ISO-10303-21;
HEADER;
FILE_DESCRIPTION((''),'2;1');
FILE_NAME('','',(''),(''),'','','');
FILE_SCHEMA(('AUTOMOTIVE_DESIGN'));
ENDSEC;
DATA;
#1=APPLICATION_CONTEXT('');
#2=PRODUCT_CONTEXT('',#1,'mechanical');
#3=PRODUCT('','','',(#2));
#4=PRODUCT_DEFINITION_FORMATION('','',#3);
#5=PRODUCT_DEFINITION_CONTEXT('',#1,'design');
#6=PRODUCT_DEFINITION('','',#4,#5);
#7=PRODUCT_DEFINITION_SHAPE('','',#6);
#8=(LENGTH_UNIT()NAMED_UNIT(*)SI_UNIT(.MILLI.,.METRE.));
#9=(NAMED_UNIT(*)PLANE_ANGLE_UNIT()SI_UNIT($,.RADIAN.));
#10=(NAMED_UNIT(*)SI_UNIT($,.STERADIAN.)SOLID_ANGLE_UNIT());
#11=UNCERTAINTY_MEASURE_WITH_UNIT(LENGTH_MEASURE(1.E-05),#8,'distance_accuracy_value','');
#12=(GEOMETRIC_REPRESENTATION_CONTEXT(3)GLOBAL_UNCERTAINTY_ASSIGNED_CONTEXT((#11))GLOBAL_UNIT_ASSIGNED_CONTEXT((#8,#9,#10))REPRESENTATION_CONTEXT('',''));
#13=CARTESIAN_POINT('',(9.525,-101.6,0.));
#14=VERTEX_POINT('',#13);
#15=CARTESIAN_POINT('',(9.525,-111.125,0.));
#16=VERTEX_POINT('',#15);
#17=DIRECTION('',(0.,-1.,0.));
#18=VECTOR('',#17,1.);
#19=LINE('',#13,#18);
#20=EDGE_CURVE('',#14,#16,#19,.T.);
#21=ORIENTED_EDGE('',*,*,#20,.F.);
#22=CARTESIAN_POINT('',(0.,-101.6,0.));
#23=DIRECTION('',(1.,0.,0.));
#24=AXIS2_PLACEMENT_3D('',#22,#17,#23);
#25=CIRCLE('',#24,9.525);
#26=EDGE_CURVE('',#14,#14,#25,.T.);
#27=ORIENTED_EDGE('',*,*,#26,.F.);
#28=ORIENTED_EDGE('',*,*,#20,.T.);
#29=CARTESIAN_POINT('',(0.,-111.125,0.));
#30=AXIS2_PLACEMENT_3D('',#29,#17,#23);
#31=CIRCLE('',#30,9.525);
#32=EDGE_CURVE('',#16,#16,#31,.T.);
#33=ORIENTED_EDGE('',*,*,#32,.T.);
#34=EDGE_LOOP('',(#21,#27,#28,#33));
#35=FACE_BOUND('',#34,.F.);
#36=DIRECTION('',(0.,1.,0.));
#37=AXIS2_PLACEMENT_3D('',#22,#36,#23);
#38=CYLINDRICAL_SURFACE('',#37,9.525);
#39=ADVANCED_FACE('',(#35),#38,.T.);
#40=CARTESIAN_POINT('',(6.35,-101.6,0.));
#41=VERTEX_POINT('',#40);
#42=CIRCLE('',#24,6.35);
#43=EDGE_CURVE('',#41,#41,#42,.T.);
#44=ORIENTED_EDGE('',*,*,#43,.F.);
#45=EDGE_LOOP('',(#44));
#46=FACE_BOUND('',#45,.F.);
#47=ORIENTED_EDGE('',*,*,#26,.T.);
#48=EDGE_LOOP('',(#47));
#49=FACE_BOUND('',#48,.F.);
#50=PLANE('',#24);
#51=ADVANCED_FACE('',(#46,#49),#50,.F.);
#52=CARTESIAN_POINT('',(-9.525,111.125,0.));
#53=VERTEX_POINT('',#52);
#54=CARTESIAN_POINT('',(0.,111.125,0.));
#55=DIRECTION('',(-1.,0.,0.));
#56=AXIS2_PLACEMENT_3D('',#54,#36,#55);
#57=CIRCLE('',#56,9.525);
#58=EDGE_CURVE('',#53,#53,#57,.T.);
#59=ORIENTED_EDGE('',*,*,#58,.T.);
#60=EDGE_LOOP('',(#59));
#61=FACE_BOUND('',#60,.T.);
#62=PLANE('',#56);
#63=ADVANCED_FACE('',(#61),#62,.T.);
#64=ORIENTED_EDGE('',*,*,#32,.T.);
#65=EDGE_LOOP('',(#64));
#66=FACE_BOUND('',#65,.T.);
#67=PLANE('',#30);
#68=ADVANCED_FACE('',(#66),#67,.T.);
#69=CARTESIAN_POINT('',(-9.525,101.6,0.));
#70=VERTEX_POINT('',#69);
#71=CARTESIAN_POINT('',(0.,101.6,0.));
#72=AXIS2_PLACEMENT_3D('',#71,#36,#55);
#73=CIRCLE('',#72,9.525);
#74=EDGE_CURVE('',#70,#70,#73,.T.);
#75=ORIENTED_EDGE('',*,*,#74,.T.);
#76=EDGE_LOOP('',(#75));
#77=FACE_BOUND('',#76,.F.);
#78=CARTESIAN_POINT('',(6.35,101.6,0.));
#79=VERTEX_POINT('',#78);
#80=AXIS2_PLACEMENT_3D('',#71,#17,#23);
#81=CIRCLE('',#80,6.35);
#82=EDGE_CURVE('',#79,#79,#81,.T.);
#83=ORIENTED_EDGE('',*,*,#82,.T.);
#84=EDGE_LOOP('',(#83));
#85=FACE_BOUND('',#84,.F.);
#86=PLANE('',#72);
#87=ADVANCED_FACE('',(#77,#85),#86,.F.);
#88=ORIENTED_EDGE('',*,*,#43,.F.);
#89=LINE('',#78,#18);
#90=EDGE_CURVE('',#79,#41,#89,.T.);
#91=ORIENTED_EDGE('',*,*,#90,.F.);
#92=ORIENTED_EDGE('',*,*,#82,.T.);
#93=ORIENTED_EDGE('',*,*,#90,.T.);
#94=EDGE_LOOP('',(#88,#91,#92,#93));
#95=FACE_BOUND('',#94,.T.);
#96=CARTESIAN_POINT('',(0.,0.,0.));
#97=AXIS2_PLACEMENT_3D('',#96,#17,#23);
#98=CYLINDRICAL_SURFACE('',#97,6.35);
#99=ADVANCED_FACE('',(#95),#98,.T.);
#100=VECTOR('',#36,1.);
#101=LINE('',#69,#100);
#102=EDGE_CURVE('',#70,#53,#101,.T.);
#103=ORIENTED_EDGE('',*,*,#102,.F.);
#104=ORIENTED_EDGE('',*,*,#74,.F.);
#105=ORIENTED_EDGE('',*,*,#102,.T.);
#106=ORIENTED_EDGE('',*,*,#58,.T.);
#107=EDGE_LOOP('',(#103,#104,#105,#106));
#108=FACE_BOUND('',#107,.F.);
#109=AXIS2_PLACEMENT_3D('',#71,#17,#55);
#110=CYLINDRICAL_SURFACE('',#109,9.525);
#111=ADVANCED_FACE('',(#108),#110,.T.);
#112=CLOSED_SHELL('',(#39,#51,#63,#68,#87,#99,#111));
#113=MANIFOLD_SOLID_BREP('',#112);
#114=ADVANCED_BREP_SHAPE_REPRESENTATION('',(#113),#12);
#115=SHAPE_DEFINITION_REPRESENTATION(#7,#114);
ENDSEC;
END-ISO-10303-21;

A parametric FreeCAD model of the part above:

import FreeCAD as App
import Part
import Sketcher
from FreeCAD import Vector
Q = App.Units.Quantity

doc = App.newDocument("Part")
body = doc.addObject("PartDesign::Body", "Body")

sketch1 = doc.addObject("Sketcher::SketchObject", "Sketch")
body.addObject(sketch1)
sketch1.AttachmentSupport = (doc.XZ_Plane, [""])
sketch1.MapMode = "FlatFace"
sketch1.addGeometry(Part.Circle(Vector(0, 0, 0), Vector(0, 0, 1), 6.35), False)
sketch1.addConstraint(Sketcher.Constraint("Coincident", 0, 3, -1, 1))
sketch1.addConstraint(Sketcher.Constraint("Diameter", 0, Q("0.5 in")))
pad1 = doc.addObject("PartDesign::Pad", "Pad")
body.addObject(pad1)
pad1.Profile = sketch1
pad1.Length = Q("8 in")
pad1.Midplane = True

sketch2 = doc.addObject("Sketcher::SketchObject", "Sketch001")
body.addObject(sketch2)
sketch2.AttachmentSupport = (doc.XZ_Plane, [""])
sketch2.MapMode = "FlatFace"
sketch2.AttachmentOffset = App.Placement(Vector(0, 0, 4 * 25.4), App.Rotation())
sketch2.addGeometry(Part.Circle(Vector(0, 0, 0), Vector(0, 0, 1), 9.525), False)
sketch2.addConstraint(Sketcher.Constraint("Coincident", 0, 3, -1, 1))
sketch2.addConstraint(Sketcher.Constraint("Diameter", 0, Q("0.75 in")))
pad2 = doc.addObject("PartDesign::Pad", "Pad001")
body.addObject(pad2)
pad2.Profile = sketch2
pad2.Length = Q("0.375 in")

sketch3 = doc.addObject("Sketcher::SketchObject", "Sketch002")
body.addObject(sketch3)
sketch3.AttachmentSupport = (doc.XZ_Plane, [""])
sketch3.MapMode = "FlatFace"
sketch3.AttachmentOffset = App.Placement(Vector(0, 0, -4 * 25.4), App.Rotation())
sketch3.addGeometry(Part.Circle(Vector(0, 0, 0), Vector(0, 0, 1), 9.525), False)
sketch3.addConstraint(Sketcher.Constraint("Coincident", 0, 3, -1, 1))
sketch3.addConstraint(Sketcher.Constraint("Diameter", 0, Q("0.75 in")))
pad3 = doc.addObject("PartDesign::Pad", "Pad002")
body.addObject(pad3)
pad3.Profile = sketch3
pad3.Length = Q("0.375 in")
pad3.Reversed = True

doc.recompute()
